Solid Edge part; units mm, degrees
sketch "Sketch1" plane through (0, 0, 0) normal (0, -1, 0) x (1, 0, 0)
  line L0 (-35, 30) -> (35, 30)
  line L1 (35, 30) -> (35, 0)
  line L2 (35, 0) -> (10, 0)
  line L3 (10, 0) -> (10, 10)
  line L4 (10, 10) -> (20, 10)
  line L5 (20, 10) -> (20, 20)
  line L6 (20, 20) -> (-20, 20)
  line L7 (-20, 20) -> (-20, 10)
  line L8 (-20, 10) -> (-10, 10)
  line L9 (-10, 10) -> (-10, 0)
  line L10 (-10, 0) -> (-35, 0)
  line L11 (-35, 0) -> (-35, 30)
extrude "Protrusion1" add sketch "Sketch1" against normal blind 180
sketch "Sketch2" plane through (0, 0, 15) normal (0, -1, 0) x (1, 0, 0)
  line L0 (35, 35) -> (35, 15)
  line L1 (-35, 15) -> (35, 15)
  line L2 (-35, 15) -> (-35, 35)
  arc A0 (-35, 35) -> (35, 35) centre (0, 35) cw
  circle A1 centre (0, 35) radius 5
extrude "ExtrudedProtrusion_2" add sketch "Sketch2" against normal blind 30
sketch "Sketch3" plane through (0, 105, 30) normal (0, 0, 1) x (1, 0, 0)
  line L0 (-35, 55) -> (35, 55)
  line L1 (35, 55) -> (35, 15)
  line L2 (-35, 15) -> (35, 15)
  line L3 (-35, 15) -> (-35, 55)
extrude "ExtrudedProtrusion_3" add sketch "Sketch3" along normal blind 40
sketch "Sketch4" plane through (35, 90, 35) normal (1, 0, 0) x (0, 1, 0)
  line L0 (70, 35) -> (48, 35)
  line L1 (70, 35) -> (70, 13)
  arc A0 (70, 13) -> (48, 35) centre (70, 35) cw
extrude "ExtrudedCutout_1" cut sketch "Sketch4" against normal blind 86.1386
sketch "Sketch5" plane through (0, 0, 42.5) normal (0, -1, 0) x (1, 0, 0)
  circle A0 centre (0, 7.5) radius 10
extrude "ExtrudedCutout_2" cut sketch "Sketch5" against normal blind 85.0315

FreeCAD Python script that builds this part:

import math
import FreeCAD as App
import Part
import Sketcher

V = App.Vector


def add_polygon(sketch, points):
    """Adds a closed chain of lines whose ends are joined by coincident constraints."""
    first, n = sketch.GeometryCount, len(points)
    for a, b in zip(points, points[1:] + points[:1]):
        sketch.addGeometry(Part.LineSegment(App.Vector(*a, 0), App.Vector(*b, 0)), False)
    for i in range(n):
        sketch.addConstraint(Sketcher.Constraint("Coincident", first + i, 2, first + (i + 1) % n, 1))

doc = App.newDocument("Part")
params = doc.addObject("Spreadsheet::Sheet", "Params")
for row, (alias, value) in enumerate([
    ("sketch1_width", "70 mm"),
    ("sketch1_width2", "25 mm"),
    ("sketch1_width3", "10 mm"),
    ("sketch1_height", "30 mm"),
    ("pad1_length", "180 mm"),
    ("sketch2_diameter", "10 mm"),
    ("sketch2_radius", "35 mm"),
    ("sketch2_height", "20 mm"),
    ("pad2_length", "30 mm"),
    ("sketch3_width", "70 mm"),
    ("sketch3_height", "40 mm"),
    ("pad3_length", "40 mm"),
    ("sketch4_radius", "22 mm"),
    ("pocket1_length", "86.1386 mm"),
    ("sketch5_diameter", "20 mm"),
    ("pocket2_length", "85.0315 mm"),
], start=1):
    params.set(f"A{row}", alias)
    params.set(f"B{row}", "=" + value)
    params.setAlias(f"B{row}", alias)

body = doc.addObject("PartDesign::Body", "Body")

# Sketch on XZ plane
sketch1 = doc.addObject("Sketcher::SketchObject", "Sketch")
body.addObject(sketch1)
sketch1.AttachmentSupport = (doc.XZ_Plane, [""])
sketch1.MapMode = "FlatFace"
add_polygon(sketch1, [(35, 30), (-35, 30), (-35, 0), (-10, 0), (-10, 10), (-20, 10), (-20, 20), (20, 20), (20, 10), (10, 10), (10, 0), (35, 0)])  # lines 0-11
sketch1.addConstraint([
    Sketcher.Constraint("Horizontal", 0),
    Sketcher.Constraint("Vertical", 1),
    Sketcher.Constraint("Horizontal", 2),
    Sketcher.Constraint("Vertical", 3),
    Sketcher.Constraint("Horizontal", 4),
    Sketcher.Constraint("Vertical", 5),
    Sketcher.Constraint("Horizontal", 6),
    Sketcher.Constraint("Vertical", 7),
    Sketcher.Constraint("Horizontal", 8),
    Sketcher.Constraint("Vertical", 9),
    Sketcher.Constraint("Horizontal", 10),
    Sketcher.Constraint("Vertical", 11),
    Sketcher.Constraint("Symmetric", 2, 2, 9, 2, -1, 1),
    Sketcher.Constraint("Symmetric", 4, 2, 7, 2, -2),
    Sketcher.Constraint("Symmetric", 1, 2, 10, 2, -2),
    Sketcher.Constraint("Equal", 8, 3),
    Sketcher.Constraint("Equal", 3, 5),
    Sketcher.Constraint("DistanceX", 0, 2, 0, 1, 70.0),
    Sketcher.Constraint("DistanceX", 2, 1, 2, 2, 25.0),
    Sketcher.Constraint("DistanceX", 4, 2, 4, 1, 10.0),
    Sketcher.Constraint("DistanceY", 1, 2, 1, 1, 30.0),
])
sketch1.setExpression("Constraints[29]", "Params.sketch1_width")
sketch1.setExpression("Constraints[30]", "Params.sketch1_width2")
sketch1.setExpression("Constraints[31]", "Params.sketch1_width3")
sketch1.setExpression("Constraints[32]", "Params.sketch1_height")
pad1 = doc.addObject("PartDesign::Pad", "Pad")
body.addObject(pad1)
pad1.Profile = sketch1
pad1.setExpression("Length", "Params.pad1_length")
pad1.Reversed = True

# Sketch on XZ plane
sketch2 = doc.addObject("Sketcher::SketchObject", "Sketch001")
body.addObject(sketch2)
sketch2.AttachmentSupport = (doc.XZ_Plane, [""])
sketch2.MapMode = "FlatFace"
sketch2.addGeometry([
    Part.LineSegment(V(35, 30, 0), V(35, 50, 0)),  # 0
    Part.ArcOfCircle(Part.Circle(V(0, 50, 0), V(0, 0, 1), 35), math.radians(0), math.radians(180)),  # 1
    Part.LineSegment(V(-35, 50, 0), V(-35, 30, 0)),  # 2
    Part.LineSegment(V(-35, 30, 0), V(35, 30, 0)),  # 3
    Part.Circle(V(0, 50, 0), V(0, 0, 1), 5),  # 4
], False)
sketch2.addConstraint([
    Sketcher.Constraint("Tangent", 0, 2, 1, 1),
    Sketcher.Constraint("Tangent", 1, 2, 2, 1),
    Sketcher.Constraint("Coincident", 2, 2, 3, 1),
    Sketcher.Constraint("Coincident", 3, 2, 0, 1),
    Sketcher.Constraint("Vertical", 0),
    Sketcher.Constraint("Vertical", 2),
    Sketcher.Constraint("Horizontal", 3),
    Sketcher.Constraint("Coincident", 4, 3, 1, 3),
    Sketcher.Constraint("PointOnObject", 1, 3, -2),
    Sketcher.Constraint("Diameter", 4, 10.0),
    Sketcher.Constraint("Radius", 1, 35.0),
    Sketcher.Constraint("DistanceY", 0, 1, 0, 2, 20.0),
    Sketcher.Constraint("DistanceY", -1, 1, 1, 3, 50.0),
])
sketch2.setExpression("Constraints[9]", "Params.sketch2_diameter")
sketch2.setExpression("Constraints[10]", "Params.sketch2_radius")
sketch2.setExpression("Constraints[11]", "Params.sketch2_height")
pad2 = doc.addObject("PartDesign::Pad", "Pad001")
body.addObject(pad2)
pad2.Profile = sketch2
pad2.setExpression("Length", "Params.pad2_length")
pad2.Reversed = True

# Sketch on XY plane
sketch3 = doc.addObject("Sketcher::SketchObject", "Sketch002")
body.addObject(sketch3)
sketch3.AttachmentSupport = (doc.XY_Plane, [""])
sketch3.MapMode = "FlatFace"
sketch3.AttachmentOffset = App.Placement(V(0, 0, 30), App.Rotation())
add_polygon(sketch3, [(35, 160), (-35, 160), (-35, 120), (35, 120)])  # lines 0-3
sketch3.addConstraint([
    Sketcher.Constraint("Horizontal", 0),
    Sketcher.Constraint("Vertical", 1),
    Sketcher.Constraint("Horizontal", 2),
    Sketcher.Constraint("Vertical", 3),
    Sketcher.Constraint("DistanceX", 0, 2, 0, 1, 70.0),
    Sketcher.Constraint("DistanceY", 1, 2, 1, 1, 40.0),
    Sketcher.Constraint("DistanceX", 0, 2, -1, 1, 35.0),
    Sketcher.Constraint("DistanceY", -1, 1, 0, 2, 160.0),
])
sketch3.setExpression("Constraints[8]", "Params.sketch3_width")
sketch3.setExpression("Constraints[9]", "Params.sketch3_height")
pad3 = doc.addObject("PartDesign::Pad", "Pad002")
body.addObject(pad3)
pad3.Profile = sketch3
pad3.setExpression("Length", "Params.pad3_length")

# Sketch on YZ plane
sketch4 = doc.addObject("Sketcher::SketchObject", "Sketch003")
body.addObject(sketch4)
sketch4.AttachmentSupport = (doc.YZ_Plane, [""])
sketch4.MapMode = "FlatFace"
sketch4.AttachmentOffset = App.Placement(V(0, 0, 35), App.Rotation())
sketch4.addGeometry([
    Part.LineSegment(V(160, 48, 0), V(160, 70, 0)),
    Part.LineSegment(V(160, 70, 0), V(138, 70, 0)),
    Part.ArcOfCircle(Part.Circle(V(160, 70, 0), V(0, 0, 1), 22), math.radians(180), math.radians(270)),
], False)
sketch4.addConstraint([
    Sketcher.Constraint("Coincident", 0, 2, 1, 1),
    Sketcher.Constraint("Coincident", 1, 2, 2, 1),
    Sketcher.Constraint("Coincident", 2, 2, 0, 1),
    Sketcher.Constraint("Vertical", 0),
    Sketcher.Constraint("Horizontal", 1),
    Sketcher.Constraint("Coincident", 0, 2, 2, 3),
    Sketcher.Constraint("Radius", 2, 22.0),
    Sketcher.Constraint("DistanceX", -1, 1, 2, 3, 160.0),
    Sketcher.Constraint("DistanceY", -1, 1, 2, 3, 70.0),
])
sketch4.setExpression("Constraints[6]", "Params.sketch4_radius")
pocket1 = doc.addObject("PartDesign::Pocket", "Pocket")
body.addObject(pocket1)
pocket1.Profile = sketch4
pocket1.setExpression("Length", "Params.pocket1_length")

# Sketch on XZ plane
sketch5 = doc.addObject("Sketcher::SketchObject", "Sketch004")
body.addObject(sketch5)
sketch5.AttachmentSupport = (doc.XZ_Plane, [""])
sketch5.MapMode = "FlatFace"
sketch5.addGeometry(Part.Circle(V(0, 50, 0), V(0, 0, 1), 10), False)
sketch5.addConstraint([
    Sketcher.Constraint("PointOnObject", 0, 3, -2),
    Sketcher.Constraint("Diameter", 0, 20.0),
    Sketcher.Constraint("DistanceY", -1, 1, 0, 3, 50.0),
])
sketch5.setExpression("Constraints[1]", "Params.sketch5_diameter")
pocket2 = doc.addObject("PartDesign::Pocket", "Pocket001")
body.addObject(pocket2)
pocket2.Profile = sketch5
pocket2.setExpression("Length", "Params.pocket2_length")

doc.recompute()
